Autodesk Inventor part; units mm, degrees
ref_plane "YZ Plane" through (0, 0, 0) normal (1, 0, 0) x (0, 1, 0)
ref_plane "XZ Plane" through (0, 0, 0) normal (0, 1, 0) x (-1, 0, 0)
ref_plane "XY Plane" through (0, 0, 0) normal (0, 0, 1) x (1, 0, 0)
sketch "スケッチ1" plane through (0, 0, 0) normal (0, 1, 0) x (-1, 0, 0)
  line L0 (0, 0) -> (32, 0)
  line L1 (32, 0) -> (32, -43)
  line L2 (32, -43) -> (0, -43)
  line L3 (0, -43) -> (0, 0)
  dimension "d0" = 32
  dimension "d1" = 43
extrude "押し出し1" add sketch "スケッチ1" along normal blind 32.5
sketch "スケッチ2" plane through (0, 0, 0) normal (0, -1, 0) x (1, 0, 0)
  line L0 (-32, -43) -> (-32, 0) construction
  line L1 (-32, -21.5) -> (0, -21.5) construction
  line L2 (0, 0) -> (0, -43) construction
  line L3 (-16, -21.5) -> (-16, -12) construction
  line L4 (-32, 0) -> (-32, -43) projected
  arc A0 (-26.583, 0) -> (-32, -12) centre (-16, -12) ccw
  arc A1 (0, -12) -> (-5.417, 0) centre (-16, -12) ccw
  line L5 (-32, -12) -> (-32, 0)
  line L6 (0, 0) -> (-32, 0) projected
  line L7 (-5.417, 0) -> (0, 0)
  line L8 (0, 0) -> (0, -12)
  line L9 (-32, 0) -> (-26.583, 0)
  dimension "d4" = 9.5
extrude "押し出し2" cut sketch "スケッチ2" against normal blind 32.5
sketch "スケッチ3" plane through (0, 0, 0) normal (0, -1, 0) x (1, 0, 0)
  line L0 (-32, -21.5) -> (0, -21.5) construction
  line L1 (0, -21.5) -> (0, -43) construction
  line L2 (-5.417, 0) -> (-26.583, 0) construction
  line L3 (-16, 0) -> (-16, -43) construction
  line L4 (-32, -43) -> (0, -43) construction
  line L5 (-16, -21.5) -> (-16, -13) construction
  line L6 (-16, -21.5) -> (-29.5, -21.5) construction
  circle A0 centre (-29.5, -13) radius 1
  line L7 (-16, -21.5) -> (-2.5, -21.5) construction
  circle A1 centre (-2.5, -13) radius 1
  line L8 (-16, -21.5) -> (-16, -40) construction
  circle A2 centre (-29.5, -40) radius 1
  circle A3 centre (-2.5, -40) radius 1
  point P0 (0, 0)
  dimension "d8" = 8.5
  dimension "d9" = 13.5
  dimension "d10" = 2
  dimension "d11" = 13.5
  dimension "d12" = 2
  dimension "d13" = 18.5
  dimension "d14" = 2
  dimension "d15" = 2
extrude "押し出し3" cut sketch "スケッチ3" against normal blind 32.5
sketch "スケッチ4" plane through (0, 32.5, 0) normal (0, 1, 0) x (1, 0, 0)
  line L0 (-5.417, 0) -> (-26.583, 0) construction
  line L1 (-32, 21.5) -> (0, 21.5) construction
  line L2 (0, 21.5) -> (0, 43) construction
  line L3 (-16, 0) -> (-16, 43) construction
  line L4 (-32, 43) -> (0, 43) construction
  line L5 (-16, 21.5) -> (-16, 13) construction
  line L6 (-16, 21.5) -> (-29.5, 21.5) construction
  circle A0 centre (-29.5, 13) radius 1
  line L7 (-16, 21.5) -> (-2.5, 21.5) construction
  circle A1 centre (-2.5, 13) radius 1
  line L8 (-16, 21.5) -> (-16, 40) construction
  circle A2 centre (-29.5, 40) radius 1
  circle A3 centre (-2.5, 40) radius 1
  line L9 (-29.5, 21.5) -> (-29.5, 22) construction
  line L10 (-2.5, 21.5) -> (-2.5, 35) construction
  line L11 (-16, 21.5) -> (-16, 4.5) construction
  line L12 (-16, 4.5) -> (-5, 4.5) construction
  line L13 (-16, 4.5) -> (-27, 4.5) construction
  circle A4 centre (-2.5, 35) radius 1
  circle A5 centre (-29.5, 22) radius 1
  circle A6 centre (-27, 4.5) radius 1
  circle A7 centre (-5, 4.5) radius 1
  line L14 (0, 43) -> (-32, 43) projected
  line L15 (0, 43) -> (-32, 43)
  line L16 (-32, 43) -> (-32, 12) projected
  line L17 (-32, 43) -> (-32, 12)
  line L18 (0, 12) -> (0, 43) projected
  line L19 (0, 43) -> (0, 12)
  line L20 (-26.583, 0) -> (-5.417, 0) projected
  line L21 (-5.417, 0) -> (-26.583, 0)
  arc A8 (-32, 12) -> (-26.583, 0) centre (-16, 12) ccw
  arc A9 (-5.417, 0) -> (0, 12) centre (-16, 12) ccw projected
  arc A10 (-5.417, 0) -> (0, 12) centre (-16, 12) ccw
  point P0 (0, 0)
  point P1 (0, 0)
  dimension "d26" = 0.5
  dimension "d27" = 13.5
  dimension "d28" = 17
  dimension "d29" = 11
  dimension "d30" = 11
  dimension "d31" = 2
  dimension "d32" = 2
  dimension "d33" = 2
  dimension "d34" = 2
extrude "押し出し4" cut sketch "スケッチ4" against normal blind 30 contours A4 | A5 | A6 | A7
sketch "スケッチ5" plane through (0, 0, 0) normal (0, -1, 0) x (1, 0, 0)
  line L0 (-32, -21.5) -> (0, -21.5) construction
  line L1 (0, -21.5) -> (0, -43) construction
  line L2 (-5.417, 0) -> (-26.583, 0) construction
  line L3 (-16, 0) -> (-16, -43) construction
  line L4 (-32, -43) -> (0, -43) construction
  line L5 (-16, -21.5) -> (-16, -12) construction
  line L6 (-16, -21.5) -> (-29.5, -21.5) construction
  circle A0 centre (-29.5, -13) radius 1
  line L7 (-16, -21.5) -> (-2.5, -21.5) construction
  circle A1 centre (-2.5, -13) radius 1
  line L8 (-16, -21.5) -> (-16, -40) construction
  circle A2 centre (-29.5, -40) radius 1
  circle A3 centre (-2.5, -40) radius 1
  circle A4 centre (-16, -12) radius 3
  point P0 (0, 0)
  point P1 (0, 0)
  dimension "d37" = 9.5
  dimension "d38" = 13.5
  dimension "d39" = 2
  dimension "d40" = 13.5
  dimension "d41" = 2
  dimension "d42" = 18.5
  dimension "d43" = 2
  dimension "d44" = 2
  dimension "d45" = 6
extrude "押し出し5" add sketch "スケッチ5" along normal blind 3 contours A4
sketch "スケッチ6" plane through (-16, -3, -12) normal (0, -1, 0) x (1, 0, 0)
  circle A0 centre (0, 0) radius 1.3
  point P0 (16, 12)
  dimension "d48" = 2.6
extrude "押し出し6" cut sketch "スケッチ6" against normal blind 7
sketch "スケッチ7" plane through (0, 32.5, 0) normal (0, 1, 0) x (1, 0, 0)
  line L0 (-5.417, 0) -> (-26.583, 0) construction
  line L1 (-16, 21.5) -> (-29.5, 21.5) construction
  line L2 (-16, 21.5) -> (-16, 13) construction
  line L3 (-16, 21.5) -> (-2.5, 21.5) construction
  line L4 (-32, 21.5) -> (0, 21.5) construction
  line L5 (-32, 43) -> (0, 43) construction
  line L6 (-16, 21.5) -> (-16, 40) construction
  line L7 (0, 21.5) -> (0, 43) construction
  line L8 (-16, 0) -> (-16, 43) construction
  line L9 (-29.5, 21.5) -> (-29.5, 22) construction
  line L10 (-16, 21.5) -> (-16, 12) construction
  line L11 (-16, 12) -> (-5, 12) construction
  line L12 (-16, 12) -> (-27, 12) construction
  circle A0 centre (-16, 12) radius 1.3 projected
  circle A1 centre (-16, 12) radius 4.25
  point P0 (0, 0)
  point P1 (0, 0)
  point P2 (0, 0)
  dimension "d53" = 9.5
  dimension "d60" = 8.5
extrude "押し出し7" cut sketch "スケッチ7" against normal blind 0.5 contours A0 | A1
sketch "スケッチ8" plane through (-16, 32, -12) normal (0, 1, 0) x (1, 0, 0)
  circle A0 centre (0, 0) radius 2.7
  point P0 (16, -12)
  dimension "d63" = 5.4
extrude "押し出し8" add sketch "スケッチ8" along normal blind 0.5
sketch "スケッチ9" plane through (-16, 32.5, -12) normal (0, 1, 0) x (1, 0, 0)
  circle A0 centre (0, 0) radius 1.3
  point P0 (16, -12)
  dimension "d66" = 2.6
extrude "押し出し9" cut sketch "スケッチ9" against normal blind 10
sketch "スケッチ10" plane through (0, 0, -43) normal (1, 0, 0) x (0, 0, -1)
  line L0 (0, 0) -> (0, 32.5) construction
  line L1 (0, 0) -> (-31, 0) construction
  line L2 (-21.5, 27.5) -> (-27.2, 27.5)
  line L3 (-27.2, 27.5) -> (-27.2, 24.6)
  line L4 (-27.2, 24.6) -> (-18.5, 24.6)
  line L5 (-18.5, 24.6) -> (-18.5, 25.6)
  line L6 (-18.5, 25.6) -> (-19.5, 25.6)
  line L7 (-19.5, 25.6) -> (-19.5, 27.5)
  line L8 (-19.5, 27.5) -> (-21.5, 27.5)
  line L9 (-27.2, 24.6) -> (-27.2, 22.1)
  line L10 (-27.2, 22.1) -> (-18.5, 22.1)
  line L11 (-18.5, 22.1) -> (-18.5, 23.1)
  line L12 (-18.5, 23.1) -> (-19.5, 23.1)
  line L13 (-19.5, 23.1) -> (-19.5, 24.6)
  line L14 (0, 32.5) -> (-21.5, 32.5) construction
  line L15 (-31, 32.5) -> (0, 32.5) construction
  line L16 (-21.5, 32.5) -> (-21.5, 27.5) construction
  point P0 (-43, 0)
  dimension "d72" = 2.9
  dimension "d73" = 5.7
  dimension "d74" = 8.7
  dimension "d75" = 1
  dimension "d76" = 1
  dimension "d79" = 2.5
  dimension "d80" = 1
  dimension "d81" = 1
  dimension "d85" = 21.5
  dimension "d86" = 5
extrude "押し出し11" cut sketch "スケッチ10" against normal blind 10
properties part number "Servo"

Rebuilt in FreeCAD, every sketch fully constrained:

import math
import FreeCAD as App
import Part
import Sketcher
from FreeCAD import Vector
Q = App.Units.Quantity


def add_polygon(sketch, points):
    """Adds a closed chain of lines whose ends are joined by coincident constraints."""
    first, n = sketch.GeometryCount, len(points)
    for a, b in zip(points, points[1:] + points[:1]):
        sketch.addGeometry(Part.LineSegment(App.Vector(*a, 0), App.Vector(*b, 0)), False)
    for i in range(n):
        sketch.addConstraint(Sketcher.Constraint("Coincident", first + i, 2, first + (i + 1) % n, 1))

doc = App.newDocument("Part")
body = doc.addObject("PartDesign::Body", "Body")

sketch1 = body.newObject("Sketcher::SketchObject", "Sketch")
sketch1.AttachmentSupport = (doc.getObject("XZ_Plane"), [""])
sketch1.MapMode = "FlatFace"
add_polygon(sketch1, [(-32, 0), (0, 0), (0, -43), (-32, -43)])
sketch1.addConstraint(Sketcher.Constraint("Horizontal", 0))
sketch1.addConstraint(Sketcher.Constraint("Vertical", 1))
sketch1.addConstraint(Sketcher.Constraint("Horizontal", 2))
sketch1.addConstraint(Sketcher.Constraint("Vertical", 3))
sketch1.addConstraint(Sketcher.Constraint("Coincident", 0, 2, -1, 1))
sketch1.addConstraint(Sketcher.Constraint("DistanceX", 0, 1, 0, 2, Q("32 mm")))
sketch1.addConstraint(Sketcher.Constraint("DistanceY", 1, 2, 1, 1, Q("43 mm")))
pad1 = body.newObject("PartDesign::Pad", "Pad")
pad1.Profile = sketch1
pad1.Length = 32.5
pad1.Reversed = True

sketch2 = body.newObject("Sketcher::SketchObject", "Sketch001")
sketch2.AttachmentSupport = (doc.getObject("XZ_Plane"), [""])
sketch2.MapMode = "FlatFace"
sketch2.addGeometry(Part.LineSegment(Vector(-27, 0, 0), Vector(-32, 0, 0)), False)
sketch2.addGeometry(Part.LineSegment(Vector(-32, 0, 0), Vector(-32, -12, 0)), False)
sketch2.addGeometry(Part.ArcOfCircle(Part.Circle(Vector(-16, -12, 0), Vector(0, 0, 1), 16), math.radians(131), math.radians(180)), False)
sketch2.addGeometry(Part.LineSegment(Vector(0, 0, 0), Vector(-5, 0, 0)), False)
sketch2.addGeometry(Part.ArcOfCircle(Part.Circle(Vector(-16, -12, 0), Vector(0, 0, 1), 16), math.radians(0), math.radians(49)), False)
sketch2.addGeometry(Part.LineSegment(Vector(0, -12, 0), Vector(0, 0, 0)), False)
sketch2.addConstraint(Sketcher.Constraint("Coincident", 0, 2, 1, 1))
sketch2.addConstraint(Sketcher.Constraint("Tangent", 1, 2, 2, 2))
sketch2.addConstraint(Sketcher.Constraint("Coincident", 2, 1, 0, 1))
sketch2.addConstraint(Sketcher.Constraint("Coincident", 3, 2, 4, 2))
sketch2.addConstraint(Sketcher.Constraint("Tangent", 4, 1, 5, 1))
sketch2.addConstraint(Sketcher.Constraint("Coincident", 5, 2, 3, 1))
sketch2.addConstraint(Sketcher.Constraint("Horizontal", 0))
sketch2.addConstraint(Sketcher.Constraint("Vertical", 1))
sketch2.addConstraint(Sketcher.Constraint("Horizontal", 3))
sketch2.addConstraint(Sketcher.Constraint("Vertical", 5))
sketch2.addConstraint(Sketcher.Constraint("Coincident", 5, 2, -1, 1))
sketch2.addConstraint(Sketcher.Constraint("Coincident", 4, 3, 2, 3))
sketch2.addConstraint(Sketcher.Constraint("Equal", 2, 4))
sketch2.addConstraint(Sketcher.Constraint("PointOnObject", 0, 2, -1))
sketch2.addConstraint(Sketcher.Constraint("Radius", 2, Q("16 mm")))
sketch2.addConstraint(Sketcher.Constraint("DistanceY", 1, 2, 1, 1, Q("12 mm")))
pocket1 = body.newObject("PartDesign::Pocket", "Pocket")
pocket1.Profile = sketch2
pocket1.Length = 32.5

sketch3 = body.newObject("Sketcher::SketchObject", "Sketch002")
sketch3.AttachmentSupport = (doc.getObject("XZ_Plane"), [""])
sketch3.MapMode = "FlatFace"
sketch3.addGeometry(Part.Circle(Vector(-29.5, -13, 0), Vector(0, 0, 1), 1), False)
sketch3.addGeometry(Part.Circle(Vector(-2.5, -13, 0), Vector(0, 0, 1), 1), False)
sketch3.addGeometry(Part.Circle(Vector(-29.5, -40, 0), Vector(0, 0, 1), 1), False)
sketch3.addGeometry(Part.Circle(Vector(-2.5, -40, 0), Vector(0, 0, 1), 1), False)
sketch3.addConstraint(Sketcher.Constraint("Equal", 0, 1))
sketch3.addConstraint(Sketcher.Constraint("Equal", 1, 2))
sketch3.addConstraint(Sketcher.Constraint("Equal", 2, 3))
sketch3.addConstraint(Sketcher.Constraint("Horizontal", 0, 3, 1, 3))
sketch3.addConstraint(Sketcher.Constraint("Horizontal", 2, 3, 3, 3))
sketch3.addConstraint(Sketcher.Constraint("Vertical", 0, 3, 2, 3))
sketch3.addConstraint(Sketcher.Constraint("Vertical", 1, 3, 3, 3))
sketch3.addConstraint(Sketcher.Constraint("Diameter", 0, Q("2 mm")))
sketch3.addConstraint(Sketcher.Constraint("DistanceY", 0, 3, -1, 1, Q("13 mm")))
sketch3.addConstraint(Sketcher.Constraint("DistanceY", 2, 3, -1, 1, Q("40 mm")))
sketch3.addConstraint(Sketcher.Constraint("DistanceX", 0, 3, 1, 3, Q("27 mm")))
sketch3.addConstraint(Sketcher.Constraint("DistanceX", 0, 3, -1, 1, Q("29.5 mm")))
pocket2 = body.newObject("PartDesign::Pocket", "Pocket001")
pocket2.Profile = sketch3
pocket2.Length = 32.5

sketch4 = body.newObject("Sketcher::SketchObject", "Sketch003")
sketch4.AttachmentSupport = (doc.getObject("XZ_Plane"), [""])
sketch4.MapMode = "FlatFace"
sketch4.AttachmentOffset = App.Placement(Vector(0, 0, -32.5), App.Rotation())
sketch4.addGeometry(Part.Circle(Vector(-2.5, -35, 0), Vector(0, 0, 1), 1), False)
sketch4.addGeometry(Part.Circle(Vector(-29.5, -22, 0), Vector(0, 0, 1), 1), False)
sketch4.addGeometry(Part.Circle(Vector(-27, -4.5, 0), Vector(0, 0, 1), 1), False)
sketch4.addGeometry(Part.Circle(Vector(-5, -4.5, 0), Vector(0, 0, 1), 1), False)
sketch4.addConstraint(Sketcher.Constraint("Equal", 0, 1))
sketch4.addConstraint(Sketcher.Constraint("Equal", 1, 2))
sketch4.addConstraint(Sketcher.Constraint("Equal", 2, 3))
sketch4.addConstraint(Sketcher.Constraint("Horizontal", 2, 3, 3, 3))
sketch4.addConstraint(Sketcher.Constraint("Diameter", 0, Q("2 mm")))
sketch4.addConstraint(Sketcher.Constraint("DistanceY", 0, 3, -1, 1, Q("35 mm")))
sketch4.addConstraint(Sketcher.Constraint("DistanceY", 1, 3, -1, 1, Q("22 mm")))
sketch4.addConstraint(Sketcher.Constraint("DistanceX", 2, 3, -1, 1, Q("27 mm")))
sketch4.addConstraint(Sketcher.Constraint("DistanceX", 3, 3, -1, 1, Q("5 mm")))
sketch4.addConstraint(Sketcher.Constraint("DistanceX", 1, 3, 0, 3, Q("27 mm")))
sketch4.addConstraint(Sketcher.Constraint("DistanceX", 0, 3, -1, 1, Q("2.5 mm")))
sketch4.addConstraint(Sketcher.Constraint("DistanceY", 2, 3, -1, 1, Q("4.5 mm")))
pocket3 = body.newObject("PartDesign::Pocket", "Pocket002")
pocket3.Profile = sketch4
pocket3.Length = 30
pocket3.Reversed = True

sketch5 = body.newObject("Sketcher::SketchObject", "Sketch004")
sketch5.AttachmentSupport = (doc.getObject("XZ_Plane"), [""])
sketch5.MapMode = "FlatFace"
sketch5.addGeometry(Part.Circle(Vector(-16, -12, 0), Vector(0, 0, 1), 3), False)
sketch5.addConstraint(Sketcher.Constraint("Diameter", 0, Q("6 mm")))
sketch5.addConstraint(Sketcher.Constraint("DistanceX", 0, 3, -1, 1, Q("16 mm")))
sketch5.addConstraint(Sketcher.Constraint("DistanceY", 0, 3, -1, 1, Q("12 mm")))
pad2 = body.newObject("PartDesign::Pad", "Pad001")
pad2.Profile = sketch5
pad2.Length = 3

sketch6 = body.newObject("Sketcher::SketchObject", "Sketch005")
sketch6.AttachmentSupport = (doc.getObject("XZ_Plane"), [""])
sketch6.MapMode = "FlatFace"
sketch6.AttachmentOffset = App.Placement(Vector(0, 0, 3), App.Rotation())
sketch6.addGeometry(Part.Circle(Vector(-16, -12, 0), Vector(0, 0, 1), 1.3), False)
sketch6.addConstraint(Sketcher.Constraint("Diameter", 0, Q("2.6 mm")))
sketch6.addConstraint(Sketcher.Constraint("DistanceX", 0, 3, -1, 1, Q("16 mm")))
sketch6.addConstraint(Sketcher.Constraint("DistanceY", 0, 3, -1, 1, Q("12 mm")))
pocket4 = body.newObject("PartDesign::Pocket", "Pocket003")
pocket4.Profile = sketch6
pocket4.Length = 7

sketch7 = body.newObject("Sketcher::SketchObject", "Sketch006")
sketch7.AttachmentSupport = (doc.getObject("XZ_Plane"), [""])
sketch7.MapMode = "FlatFace"
sketch7.AttachmentOffset = App.Placement(Vector(0, 0, -32.5), App.Rotation())
sketch7.addGeometry(Part.Circle(Vector(-16, -12, 0), Vector(0, 0, 1), 4.2), False)
sketch7.addConstraint(Sketcher.Constraint("Diameter", 0, Q("8.5 mm")))
sketch7.addConstraint(Sketcher.Constraint("DistanceX", 0, 3, -1, 1, Q("16 mm")))
sketch7.addConstraint(Sketcher.Constraint("DistanceY", 0, 3, -1, 1, Q("12 mm")))
pocket5 = body.newObject("PartDesign::Pocket", "Pocket004")
pocket5.Profile = sketch7
pocket5.Length = 0.5
pocket5.Reversed = True

sketch8 = body.newObject("Sketcher::SketchObject", "Sketch007")
sketch8.AttachmentSupport = (doc.getObject("XZ_Plane"), [""])
sketch8.MapMode = "FlatFace"
sketch8.AttachmentOffset = App.Placement(Vector(0, 0, -32), App.Rotation())
sketch8.addGeometry(Part.Circle(Vector(-16, -12, 0), Vector(0, 0, 1), 2.7), False)
sketch8.addConstraint(Sketcher.Constraint("Diameter", 0, Q("5.4 mm")))
sketch8.addConstraint(Sketcher.Constraint("DistanceX", 0, 3, -1, 1, Q("16 mm")))
sketch8.addConstraint(Sketcher.Constraint("DistanceY", 0, 3, -1, 1, Q("12 mm")))
pad3 = body.newObject("PartDesign::Pad", "Pad002")
pad3.Profile = sketch8
pad3.Length = 0.5
pad3.Reversed = True

sketch9 = body.newObject("Sketcher::SketchObject", "Sketch008")
sketch9.AttachmentSupport = (doc.getObject("XZ_Plane"), [""])
sketch9.MapMode = "FlatFace"
sketch9.AttachmentOffset = App.Placement(Vector(0, 0, -32.5), App.Rotation())
sketch9.addGeometry(Part.Circle(Vector(-16, -12, 0), Vector(0, 0, 1), 1.3), False)
sketch9.addConstraint(Sketcher.Constraint("Diameter", 0, Q("2.6 mm")))
sketch9.addConstraint(Sketcher.Constraint("DistanceX", 0, 3, -1, 1, Q("16 mm")))
sketch9.addConstraint(Sketcher.Constraint("DistanceY", 0, 3, -1, 1, Q("12 mm")))
pocket6 = body.newObject("PartDesign::Pocket", "Pocket005")
pocket6.Profile = sketch9
pocket6.Length = 10
pocket6.Reversed = True

sketch10 = body.newObject("Sketcher::SketchObject", "Sketch009")
sketch10.AttachmentSupport = (doc.getObject("YZ_Plane"), [""])
sketch10.MapMode = "FlatFace"
add_polygon(sketch10, [(27.5, -23.5), (27.5, -15.8), (22.1, -15.8), (22.1, -24.5), (23.1, -24.5), (23.1, -23.5), (24.6, -23.5), (24.6, -24.5), (25.6, -24.5), (25.6, -23.5)])
sketch10.addConstraint(Sketcher.Constraint("Vertical", 0))
sketch10.addConstraint(Sketcher.Constraint("Horizontal", 1))
sketch10.addConstraint(Sketcher.Constraint("Vertical", 2))
sketch10.addConstraint(Sketcher.Constraint("Horizontal", 3))
sketch10.addConstraint(Sketcher.Constraint("Vertical", 4))
sketch10.addConstraint(Sketcher.Constraint("Horizontal", 5))
sketch10.addConstraint(Sketcher.Constraint("Vertical", 6))
sketch10.addConstraint(Sketcher.Constraint("Horizontal", 7))
sketch10.addConstraint(Sketcher.Constraint("Vertical", 8))
sketch10.addConstraint(Sketcher.Constraint("Horizontal", 9))
sketch10.addConstraint(Sketcher.Constraint("Horizontal", 3, 2, 6, 2))
sketch10.addConstraint(Sketcher.Constraint("Horizontal", 5, 2, 8, 2))
sketch10.addConstraint(Sketcher.Constraint("Equal", 3, 7))
sketch10.addConstraint(Sketcher.Constraint("Equal", 7, 4))
sketch10.addConstraint(Sketcher.Constraint("DistanceX", 3, 1, 3, 2, Q("1 mm")))
sketch10.addConstraint(Sketcher.Constraint("DistanceY", 2, 2, 2, 1, Q("8.7 mm")))
sketch10.addConstraint(Sketcher.Constraint("DistanceX", 2, 2, 5, 2, Q("2.5 mm")))
sketch10.addConstraint(Sketcher.Constraint("DistanceX", 5, 2, 0, 2, Q("2.9 mm")))
sketch10.addConstraint(Sketcher.Constraint("DistanceX", -1, 1, 0, 2, Q("27.5 mm")))
sketch10.addConstraint(Sketcher.Constraint("DistanceY", 0, 2, -1, 1, Q("15.8 mm")))
pocket7 = body.newObject("PartDesign::Pocket", "Pocket006")
pocket7.Profile = sketch10
pocket7.Length = 10

doc.recompute()
